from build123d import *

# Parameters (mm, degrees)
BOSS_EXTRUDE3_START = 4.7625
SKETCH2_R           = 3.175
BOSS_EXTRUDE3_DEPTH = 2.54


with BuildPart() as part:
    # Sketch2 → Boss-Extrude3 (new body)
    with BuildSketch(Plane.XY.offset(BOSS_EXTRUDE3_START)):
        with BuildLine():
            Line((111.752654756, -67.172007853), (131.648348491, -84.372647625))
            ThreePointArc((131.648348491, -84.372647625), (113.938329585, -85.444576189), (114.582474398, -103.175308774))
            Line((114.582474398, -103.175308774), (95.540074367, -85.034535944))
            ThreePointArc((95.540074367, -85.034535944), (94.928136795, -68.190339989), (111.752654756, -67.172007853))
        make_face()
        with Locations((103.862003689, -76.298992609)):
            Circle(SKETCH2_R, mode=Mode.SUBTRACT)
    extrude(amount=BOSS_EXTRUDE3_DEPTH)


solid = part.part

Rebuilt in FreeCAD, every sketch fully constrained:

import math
import FreeCAD as App
import Part
import Sketcher

V = App.Vector
Q = App.Units.Quantity

doc = App.newDocument("Part")
body = doc.addObject("PartDesign::Body", "Body")

sketch1 = body.newObject("Sketcher::SketchObject", "Sketch")
sketch1.AttachmentSupport = (doc.getObject("XY_Plane"), [""])
sketch1.MapMode = "FlatFace"
sketch1.AttachmentOffset = App.Placement(V(0, 0, 0.1875 * 25.4), App.Rotation())
sketch1.addGeometry([
    Part.LineSegment(V(131.6, -84.4, 0), V(111.8, -67.2, 0)),
    Part.ArcOfCircle(Part.Circle(V(103.9, -76.3, 0), V(0, 0, 1), 12.1), math.radians(49), math.radians(226)),
    Part.LineSegment(V(95.5, -85, 0), V(114.6, -103.2, 0)),
    Part.ArcOfCircle(Part.Circle(V(123.3, -94, 0), V(0, 0, 1), 12.7), math.radians(49), math.radians(226)),
    Part.Circle(V(103.9, -76.3, 0), V(0, 0, 1), 3.2),
], False)
sketch1.addConstraint([
    Sketcher.Constraint("Tangent", 0, 2, 1, 1),
    Sketcher.Constraint("Tangent", 1, 2, 2, 1),
    Sketcher.Constraint("Tangent", 2, 2, 3, 2),
    Sketcher.Constraint("Tangent", 3, 1, 0, 1),
    Sketcher.Constraint("Coincident", 4, 3, 1, 3),
    Sketcher.Constraint("Radius", 3, Q("0.5 in")),
    Sketcher.Constraint("Diameter", 4, Q("0.25 in")),
    Sketcher.Constraint("Radius", 1, Q("0.475 in")),
    Sketcher.Constraint("DistanceY", 3, 3, -1, 1, Q("3.7 in")),
    Sketcher.Constraint("DistanceX", -1, 1, 3, 3, Q("4.856 in")),
    Sketcher.Constraint("DistanceX", 1, 2, 2, 2, 19.0424),
    Sketcher.Constraint("DistanceY", 2, 2, 0, 2, 36.003301),
])
pad1 = body.newObject("PartDesign::Pad", "Pad")
pad1.Profile = sketch1
pad1.Length = Q("0.1 in")

doc.recompute()
